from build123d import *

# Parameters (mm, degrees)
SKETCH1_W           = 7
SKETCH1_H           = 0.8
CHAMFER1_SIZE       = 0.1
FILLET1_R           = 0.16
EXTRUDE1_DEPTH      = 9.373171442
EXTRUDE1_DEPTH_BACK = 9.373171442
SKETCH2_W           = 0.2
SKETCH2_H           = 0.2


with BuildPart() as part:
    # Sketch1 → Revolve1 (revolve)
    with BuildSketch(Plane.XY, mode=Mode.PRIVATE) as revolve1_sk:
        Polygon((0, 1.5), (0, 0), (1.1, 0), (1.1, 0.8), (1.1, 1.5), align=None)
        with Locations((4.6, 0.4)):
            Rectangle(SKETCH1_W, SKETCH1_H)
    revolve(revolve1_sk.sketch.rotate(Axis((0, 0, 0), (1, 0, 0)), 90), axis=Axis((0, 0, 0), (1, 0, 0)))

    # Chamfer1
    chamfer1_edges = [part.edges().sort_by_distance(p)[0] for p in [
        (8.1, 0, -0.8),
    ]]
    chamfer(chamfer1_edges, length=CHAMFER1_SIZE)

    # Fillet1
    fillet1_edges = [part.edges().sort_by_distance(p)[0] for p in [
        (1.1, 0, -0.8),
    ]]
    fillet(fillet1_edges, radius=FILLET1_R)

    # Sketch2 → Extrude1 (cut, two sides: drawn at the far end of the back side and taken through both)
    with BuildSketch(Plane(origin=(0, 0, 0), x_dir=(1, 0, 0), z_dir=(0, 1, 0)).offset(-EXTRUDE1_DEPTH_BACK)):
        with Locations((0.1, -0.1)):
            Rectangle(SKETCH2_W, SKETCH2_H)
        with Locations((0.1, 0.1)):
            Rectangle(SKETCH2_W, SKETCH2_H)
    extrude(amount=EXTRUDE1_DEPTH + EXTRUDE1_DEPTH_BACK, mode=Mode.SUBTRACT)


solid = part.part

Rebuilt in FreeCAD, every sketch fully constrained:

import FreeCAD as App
import Part
import Sketcher


def edges_at(feature, points):
    """Names of the edges that pass closest to the given points."""
    edges = feature.Shape.Edges
    near = lambda p: min(range(len(edges)), key=lambda i: edges[i].distToShape(Part.Vertex(*p))[0])
    return sorted({f"Edge{near(p) + 1}" for p in points})


def add_polygon(sketch, points):
    """Adds a closed chain of lines whose ends are joined by coincident constraints."""
    first, n = sketch.GeometryCount, len(points)
    for a, b in zip(points, points[1:] + points[:1]):
        sketch.addGeometry(Part.LineSegment(App.Vector(*a, 0), App.Vector(*b, 0)), False)
    for i in range(n):
        sketch.addConstraint(Sketcher.Constraint("Coincident", first + i, 2, first + (i + 1) % n, 1))

doc = App.newDocument("Part")
body = doc.addObject("PartDesign::Body", "Body")

# Sketch on XY plane
sketch1 = body.newObject("Sketcher::SketchObject", "Sketch")
sketch1.AttachmentSupport = (doc.getObject("XY_Plane"), [""])
sketch1.MapMode = "FlatFace"
add_polygon(sketch1, [(0, 1.5), (0, 0), (8.1, 0), (8.1, 0.8), (1.1, 0.8), (1.1, 1.5)])  # lines 0-5
sketch1.addConstraint(Sketcher.Constraint("Vertical", 0))
sketch1.addConstraint(Sketcher.Constraint("Horizontal", 1))
sketch1.addConstraint(Sketcher.Constraint("Vertical", 2))
sketch1.addConstraint(Sketcher.Constraint("Horizontal", 3))
sketch1.addConstraint(Sketcher.Constraint("Vertical", 4))
sketch1.addConstraint(Sketcher.Constraint("Horizontal", 5))
sketch1.addConstraint(Sketcher.Constraint("Coincident", 0, 2, -1, 1))
sketch1.addConstraint(Sketcher.Constraint("DistanceX", 3, 2, 3, 1, 7.0))
sketch1.addConstraint(Sketcher.Constraint("DistanceX", 1, 1, 1, 2, 8.1))
sketch1.addConstraint(Sketcher.Constraint("DistanceY", 0, 2, 0, 1, 1.5))
sketch1.addConstraint(Sketcher.Constraint("DistanceY", 2, 1, 2, 2, 0.8))
revolution = body.newObject("PartDesign::Revolution", "Revolution")
revolution.Profile = sketch1
revolution.ReferenceAxis = (sketch1, ["H_Axis"])
revolution.Angle = 360
doc.recompute()

chamfer = body.newObject("PartDesign::Chamfer", "Chamfer")
chamfer.Base = (revolution, edges_at(revolution, [(8.1, 0, -0.8)]))
chamfer.Size = 0.1
doc.recompute()

fillet = body.newObject("PartDesign::Fillet", "Fillet")
fillet.Base = (chamfer, edges_at(chamfer, [(1.1, 0, -0.8)]))
fillet.Radius = 0.16

# Sketch on XZ plane
sketch2 = body.newObject("Sketcher::SketchObject", "Sketch001")
sketch2.AttachmentSupport = (doc.getObject("XZ_Plane"), [""])
sketch2.MapMode = "FlatFace"
add_polygon(sketch2, [(0, 0.2), (0.2, 0.2), (0.2, -0.2), (0, -0.2)])  # lines 0-3
sketch2.addConstraint(Sketcher.Constraint("Horizontal", 0))
sketch2.addConstraint(Sketcher.Constraint("Vertical", 1))
sketch2.addConstraint(Sketcher.Constraint("Horizontal", 2))
sketch2.addConstraint(Sketcher.Constraint("Vertical", 3))
sketch2.addConstraint(Sketcher.Constraint("Symmetric", 2, 2, 3, 2, -1, 1))
sketch2.addConstraint(Sketcher.Constraint("DistanceX", 0, 1, 0, 2, 0.2))
sketch2.addConstraint(Sketcher.Constraint("DistanceY", 1, 2, 1, 1, 0.4))
pocket1 = body.newObject("PartDesign::Pocket", "Pocket")
pocket1.Profile = sketch2
pocket1.Type = "ThroughAll"
pocket1.Midplane = True

doc.recompute()
